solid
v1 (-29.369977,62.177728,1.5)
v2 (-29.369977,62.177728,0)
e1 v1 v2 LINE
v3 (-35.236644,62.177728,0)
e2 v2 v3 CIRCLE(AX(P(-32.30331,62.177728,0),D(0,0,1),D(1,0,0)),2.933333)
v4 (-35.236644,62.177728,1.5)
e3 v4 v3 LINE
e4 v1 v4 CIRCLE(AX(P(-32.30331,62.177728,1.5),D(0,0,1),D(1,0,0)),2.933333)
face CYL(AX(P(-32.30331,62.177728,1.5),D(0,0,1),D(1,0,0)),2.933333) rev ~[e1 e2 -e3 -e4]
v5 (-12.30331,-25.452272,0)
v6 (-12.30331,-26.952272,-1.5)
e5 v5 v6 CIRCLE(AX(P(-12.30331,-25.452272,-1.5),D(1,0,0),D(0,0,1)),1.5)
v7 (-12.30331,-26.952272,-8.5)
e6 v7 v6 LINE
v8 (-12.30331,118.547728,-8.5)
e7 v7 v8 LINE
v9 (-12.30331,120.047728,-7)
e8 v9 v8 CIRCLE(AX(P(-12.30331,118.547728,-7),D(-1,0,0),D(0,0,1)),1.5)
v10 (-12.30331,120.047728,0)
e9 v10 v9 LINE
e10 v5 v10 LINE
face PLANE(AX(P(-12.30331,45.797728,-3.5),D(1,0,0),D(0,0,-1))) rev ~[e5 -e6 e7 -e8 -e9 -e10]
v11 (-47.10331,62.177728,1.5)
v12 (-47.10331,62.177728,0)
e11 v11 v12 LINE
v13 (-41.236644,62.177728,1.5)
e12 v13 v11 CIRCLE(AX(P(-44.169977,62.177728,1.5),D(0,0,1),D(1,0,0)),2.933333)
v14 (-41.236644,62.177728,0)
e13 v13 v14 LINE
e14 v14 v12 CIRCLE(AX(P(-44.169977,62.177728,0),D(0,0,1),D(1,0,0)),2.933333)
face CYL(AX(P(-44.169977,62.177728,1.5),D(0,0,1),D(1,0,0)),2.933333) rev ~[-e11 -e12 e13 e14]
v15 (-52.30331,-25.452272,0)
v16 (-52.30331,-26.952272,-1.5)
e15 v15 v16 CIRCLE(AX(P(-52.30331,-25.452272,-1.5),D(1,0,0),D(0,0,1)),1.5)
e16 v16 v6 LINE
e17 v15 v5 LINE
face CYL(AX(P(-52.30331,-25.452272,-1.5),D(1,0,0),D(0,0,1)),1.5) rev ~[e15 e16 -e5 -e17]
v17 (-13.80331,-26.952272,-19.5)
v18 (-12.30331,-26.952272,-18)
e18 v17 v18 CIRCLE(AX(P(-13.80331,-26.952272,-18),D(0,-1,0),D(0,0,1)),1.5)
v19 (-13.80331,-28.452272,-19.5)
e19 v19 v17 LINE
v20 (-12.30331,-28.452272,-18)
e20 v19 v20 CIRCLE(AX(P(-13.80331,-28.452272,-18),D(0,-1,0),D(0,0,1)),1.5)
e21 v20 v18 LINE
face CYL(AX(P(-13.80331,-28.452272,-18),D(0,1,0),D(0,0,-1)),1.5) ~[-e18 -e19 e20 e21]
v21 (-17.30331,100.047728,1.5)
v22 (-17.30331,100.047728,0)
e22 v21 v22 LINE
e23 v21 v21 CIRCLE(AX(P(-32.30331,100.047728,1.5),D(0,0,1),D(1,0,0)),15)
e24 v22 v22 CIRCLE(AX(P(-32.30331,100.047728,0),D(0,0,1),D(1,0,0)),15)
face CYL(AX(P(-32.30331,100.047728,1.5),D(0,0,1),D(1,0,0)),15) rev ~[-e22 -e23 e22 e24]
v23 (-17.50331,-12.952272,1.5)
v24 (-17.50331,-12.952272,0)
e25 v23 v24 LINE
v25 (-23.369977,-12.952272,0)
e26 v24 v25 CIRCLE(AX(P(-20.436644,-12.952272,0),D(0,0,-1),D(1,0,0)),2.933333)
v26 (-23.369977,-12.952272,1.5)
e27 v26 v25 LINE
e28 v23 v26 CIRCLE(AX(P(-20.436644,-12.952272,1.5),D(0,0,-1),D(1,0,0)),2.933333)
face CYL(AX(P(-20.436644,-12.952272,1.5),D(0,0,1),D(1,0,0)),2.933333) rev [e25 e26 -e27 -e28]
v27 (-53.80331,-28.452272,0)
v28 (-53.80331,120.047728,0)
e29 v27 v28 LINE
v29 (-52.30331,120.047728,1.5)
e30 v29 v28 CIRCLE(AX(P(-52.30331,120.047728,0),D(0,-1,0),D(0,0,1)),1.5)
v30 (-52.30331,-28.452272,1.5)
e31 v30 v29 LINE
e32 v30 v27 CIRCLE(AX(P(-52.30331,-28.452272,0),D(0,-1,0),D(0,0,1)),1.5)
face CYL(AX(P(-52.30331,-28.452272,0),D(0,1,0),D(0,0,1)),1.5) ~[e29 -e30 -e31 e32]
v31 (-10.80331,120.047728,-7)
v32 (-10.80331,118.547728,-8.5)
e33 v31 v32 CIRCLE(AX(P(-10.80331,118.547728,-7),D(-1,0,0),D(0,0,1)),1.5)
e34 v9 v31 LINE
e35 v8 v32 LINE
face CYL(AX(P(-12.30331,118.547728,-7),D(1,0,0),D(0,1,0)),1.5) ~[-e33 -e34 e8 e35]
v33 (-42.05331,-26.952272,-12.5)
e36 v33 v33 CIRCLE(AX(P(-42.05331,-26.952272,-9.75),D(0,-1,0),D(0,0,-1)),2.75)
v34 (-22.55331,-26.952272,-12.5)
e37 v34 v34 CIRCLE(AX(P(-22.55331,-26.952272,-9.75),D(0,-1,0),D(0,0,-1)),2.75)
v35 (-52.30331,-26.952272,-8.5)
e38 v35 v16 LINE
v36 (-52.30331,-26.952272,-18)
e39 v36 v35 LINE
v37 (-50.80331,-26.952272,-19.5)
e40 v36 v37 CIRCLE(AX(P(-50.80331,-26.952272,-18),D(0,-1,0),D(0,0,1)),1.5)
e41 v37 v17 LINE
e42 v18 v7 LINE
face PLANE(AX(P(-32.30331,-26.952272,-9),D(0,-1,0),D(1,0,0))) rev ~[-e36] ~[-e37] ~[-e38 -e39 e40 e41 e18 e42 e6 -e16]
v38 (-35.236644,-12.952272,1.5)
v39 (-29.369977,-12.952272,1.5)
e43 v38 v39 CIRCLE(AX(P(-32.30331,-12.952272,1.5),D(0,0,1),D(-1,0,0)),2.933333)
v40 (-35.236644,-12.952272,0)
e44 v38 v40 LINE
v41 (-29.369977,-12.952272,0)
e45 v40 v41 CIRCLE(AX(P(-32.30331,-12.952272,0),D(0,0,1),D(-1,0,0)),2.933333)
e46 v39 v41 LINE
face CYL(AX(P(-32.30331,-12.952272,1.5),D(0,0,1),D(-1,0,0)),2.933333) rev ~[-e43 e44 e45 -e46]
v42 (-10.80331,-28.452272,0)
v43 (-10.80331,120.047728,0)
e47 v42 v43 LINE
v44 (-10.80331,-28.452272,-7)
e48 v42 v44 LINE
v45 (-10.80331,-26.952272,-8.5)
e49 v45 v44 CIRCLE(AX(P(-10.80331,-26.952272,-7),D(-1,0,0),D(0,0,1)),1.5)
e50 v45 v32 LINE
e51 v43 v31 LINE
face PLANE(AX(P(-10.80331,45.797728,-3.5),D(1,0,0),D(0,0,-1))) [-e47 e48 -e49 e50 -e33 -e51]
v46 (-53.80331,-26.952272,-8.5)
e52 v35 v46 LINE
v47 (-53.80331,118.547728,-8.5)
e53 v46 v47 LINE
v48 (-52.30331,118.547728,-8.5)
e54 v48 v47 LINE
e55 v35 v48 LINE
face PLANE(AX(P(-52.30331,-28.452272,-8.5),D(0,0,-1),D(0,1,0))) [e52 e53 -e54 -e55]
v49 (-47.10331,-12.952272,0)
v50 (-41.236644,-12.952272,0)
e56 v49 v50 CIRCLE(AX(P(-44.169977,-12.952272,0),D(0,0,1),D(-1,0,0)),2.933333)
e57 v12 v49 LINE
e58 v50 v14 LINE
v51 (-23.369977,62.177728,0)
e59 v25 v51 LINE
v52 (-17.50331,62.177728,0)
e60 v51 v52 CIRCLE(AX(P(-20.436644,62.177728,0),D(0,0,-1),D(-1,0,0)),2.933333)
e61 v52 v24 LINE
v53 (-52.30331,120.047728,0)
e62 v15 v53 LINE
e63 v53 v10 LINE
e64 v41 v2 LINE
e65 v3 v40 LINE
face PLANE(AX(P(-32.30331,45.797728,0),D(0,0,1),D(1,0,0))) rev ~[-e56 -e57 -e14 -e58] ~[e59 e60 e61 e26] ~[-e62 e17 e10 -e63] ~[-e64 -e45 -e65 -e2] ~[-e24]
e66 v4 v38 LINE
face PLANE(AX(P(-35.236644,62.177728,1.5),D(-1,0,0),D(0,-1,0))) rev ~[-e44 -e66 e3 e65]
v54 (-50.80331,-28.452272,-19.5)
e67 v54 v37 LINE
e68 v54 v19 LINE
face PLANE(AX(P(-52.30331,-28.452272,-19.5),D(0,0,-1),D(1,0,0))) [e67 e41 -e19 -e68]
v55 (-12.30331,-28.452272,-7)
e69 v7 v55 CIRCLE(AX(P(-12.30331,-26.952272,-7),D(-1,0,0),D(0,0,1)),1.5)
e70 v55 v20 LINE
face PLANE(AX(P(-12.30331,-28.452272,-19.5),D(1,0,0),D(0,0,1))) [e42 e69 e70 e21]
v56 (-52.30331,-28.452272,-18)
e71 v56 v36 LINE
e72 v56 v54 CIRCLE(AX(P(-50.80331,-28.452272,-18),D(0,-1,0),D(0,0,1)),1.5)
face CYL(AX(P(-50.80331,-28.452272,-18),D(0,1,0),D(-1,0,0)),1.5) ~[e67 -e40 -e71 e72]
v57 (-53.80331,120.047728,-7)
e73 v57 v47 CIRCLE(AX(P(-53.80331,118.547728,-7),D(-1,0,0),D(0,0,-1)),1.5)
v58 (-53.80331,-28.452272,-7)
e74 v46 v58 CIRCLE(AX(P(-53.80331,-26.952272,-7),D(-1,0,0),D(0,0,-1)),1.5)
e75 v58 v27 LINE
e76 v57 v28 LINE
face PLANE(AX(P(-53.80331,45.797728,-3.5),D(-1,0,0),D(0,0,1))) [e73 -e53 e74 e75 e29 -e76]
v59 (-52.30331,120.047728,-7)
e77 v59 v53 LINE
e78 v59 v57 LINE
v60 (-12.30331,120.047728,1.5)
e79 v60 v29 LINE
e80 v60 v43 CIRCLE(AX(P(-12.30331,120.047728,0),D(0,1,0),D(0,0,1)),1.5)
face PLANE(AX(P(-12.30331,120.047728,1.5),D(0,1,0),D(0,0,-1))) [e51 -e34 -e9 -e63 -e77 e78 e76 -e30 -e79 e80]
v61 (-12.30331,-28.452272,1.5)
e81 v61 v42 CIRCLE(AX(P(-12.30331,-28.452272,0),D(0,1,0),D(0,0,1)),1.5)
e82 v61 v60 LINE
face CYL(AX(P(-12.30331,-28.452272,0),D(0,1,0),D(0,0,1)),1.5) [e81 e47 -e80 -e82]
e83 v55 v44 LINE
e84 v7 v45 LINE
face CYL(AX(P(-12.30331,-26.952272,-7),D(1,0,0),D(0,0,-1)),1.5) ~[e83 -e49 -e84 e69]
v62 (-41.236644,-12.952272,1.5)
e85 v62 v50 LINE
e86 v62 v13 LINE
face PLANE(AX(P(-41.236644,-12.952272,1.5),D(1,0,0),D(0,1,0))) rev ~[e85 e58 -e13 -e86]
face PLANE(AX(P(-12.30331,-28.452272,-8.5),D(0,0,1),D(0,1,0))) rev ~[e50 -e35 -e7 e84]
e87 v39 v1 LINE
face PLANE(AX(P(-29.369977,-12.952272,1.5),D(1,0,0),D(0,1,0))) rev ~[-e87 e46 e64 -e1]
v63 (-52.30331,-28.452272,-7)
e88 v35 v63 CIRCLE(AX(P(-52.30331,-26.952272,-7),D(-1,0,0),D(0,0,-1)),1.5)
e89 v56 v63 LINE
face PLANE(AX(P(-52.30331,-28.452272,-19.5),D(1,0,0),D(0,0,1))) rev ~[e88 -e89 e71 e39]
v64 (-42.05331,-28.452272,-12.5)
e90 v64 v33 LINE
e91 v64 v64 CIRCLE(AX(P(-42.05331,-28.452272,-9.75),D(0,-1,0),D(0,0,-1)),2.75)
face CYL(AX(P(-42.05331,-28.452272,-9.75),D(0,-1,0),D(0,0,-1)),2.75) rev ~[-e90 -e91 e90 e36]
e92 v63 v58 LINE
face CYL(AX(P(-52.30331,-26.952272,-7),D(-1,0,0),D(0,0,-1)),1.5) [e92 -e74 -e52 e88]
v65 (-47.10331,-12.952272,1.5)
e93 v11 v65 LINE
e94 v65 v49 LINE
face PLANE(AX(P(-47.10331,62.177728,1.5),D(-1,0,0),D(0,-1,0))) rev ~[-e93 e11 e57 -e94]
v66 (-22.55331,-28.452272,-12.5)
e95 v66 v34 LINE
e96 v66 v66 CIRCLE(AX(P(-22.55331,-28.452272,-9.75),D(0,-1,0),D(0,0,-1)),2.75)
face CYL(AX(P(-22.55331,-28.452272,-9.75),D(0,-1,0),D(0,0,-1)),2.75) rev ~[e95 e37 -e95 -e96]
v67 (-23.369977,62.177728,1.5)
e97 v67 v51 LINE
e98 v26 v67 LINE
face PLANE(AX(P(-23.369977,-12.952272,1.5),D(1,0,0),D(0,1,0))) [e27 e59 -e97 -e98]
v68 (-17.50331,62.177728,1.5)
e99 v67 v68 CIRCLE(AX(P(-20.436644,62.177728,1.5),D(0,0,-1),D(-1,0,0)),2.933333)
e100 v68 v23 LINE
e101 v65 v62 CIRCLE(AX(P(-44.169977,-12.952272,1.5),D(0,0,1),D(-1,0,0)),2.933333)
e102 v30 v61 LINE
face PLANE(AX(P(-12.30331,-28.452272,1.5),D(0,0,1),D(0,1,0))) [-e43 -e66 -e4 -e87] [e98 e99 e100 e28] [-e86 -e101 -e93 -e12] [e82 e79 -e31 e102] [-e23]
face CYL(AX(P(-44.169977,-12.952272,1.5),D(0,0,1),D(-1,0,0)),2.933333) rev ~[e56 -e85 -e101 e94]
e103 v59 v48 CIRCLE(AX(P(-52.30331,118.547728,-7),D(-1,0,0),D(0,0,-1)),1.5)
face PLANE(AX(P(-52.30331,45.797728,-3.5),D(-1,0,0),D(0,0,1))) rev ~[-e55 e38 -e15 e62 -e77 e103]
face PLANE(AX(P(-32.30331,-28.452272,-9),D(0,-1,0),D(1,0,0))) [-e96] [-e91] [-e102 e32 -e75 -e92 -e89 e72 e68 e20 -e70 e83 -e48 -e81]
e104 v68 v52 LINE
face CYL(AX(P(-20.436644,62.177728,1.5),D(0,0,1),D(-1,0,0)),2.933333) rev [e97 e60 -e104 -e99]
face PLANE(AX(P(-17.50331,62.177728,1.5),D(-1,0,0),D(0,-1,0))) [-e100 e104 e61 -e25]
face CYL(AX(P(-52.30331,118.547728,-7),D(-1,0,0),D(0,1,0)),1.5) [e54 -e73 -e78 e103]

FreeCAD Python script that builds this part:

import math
import FreeCAD as App
import Part
import Sketcher

V = App.Vector
Q = App.Units.Quantity


def edges_at(feature, points):
    """Names of the edges that pass closest to the given points."""
    edges = feature.Shape.Edges
    near = lambda p: min(range(len(edges)), key=lambda i: edges[i].distToShape(Part.Vertex(*p))[0])
    return sorted({f"Edge{near(p) + 1}" for p in points})

doc = App.newDocument("Part")
body = doc.addObject("PartDesign::Body", "Body")

sketch1 = doc.addObject("Sketcher::SketchObject", "Sketch")
body.addObject(sketch1)
sketch1.AttachmentSupport = (doc.XY_Plane, [""])
sketch1.MapMode = "FlatFace"
sketch1.addGeometry([
    Part.LineSegment(V(-52, 120, 0), V(-52, -28, 0)),
    Part.LineSegment(V(-52, -28, 0), V(-12, -28, 0)),
    Part.LineSegment(V(-12, -28, 0), V(-12, 120, 0)),
    Part.LineSegment(V(-12, 120, 0), V(-52, 120, 0)),
], False)
sketch1.addConstraint([
    Sketcher.Constraint("Coincident", 0, 2, 1, 1),
    Sketcher.Constraint("Coincident", 1, 2, 2, 1),
    Sketcher.Constraint("Coincident", 2, 2, 3, 1),
    Sketcher.Constraint("Coincident", 3, 2, 0, 1),
    Sketcher.Constraint("Vertical", 0),
    Sketcher.Constraint("Horizontal", 1),
    Sketcher.Constraint("Vertical", 2),
    Sketcher.Constraint("Horizontal", 3),
    Sketcher.Constraint("DistanceX", 1, 1, 1, 2, Q("40 mm")),
    Sketcher.Constraint("DistanceY", 0, 2, 0, 1, Q("148.5 mm")),
    Sketcher.Constraint("DistanceX", 0, 2, -1, 1, Q("52.30331 mm")),
    Sketcher.Constraint("DistanceY", 0, 2, -1, 1, Q("28.452272 mm")),
])
pad1 = doc.addObject("PartDesign::Pad", "Pad")
body.addObject(pad1)
pad1.Profile = sketch1
pad1.Length = 1.5

sketch2 = doc.addObject("Sketcher::SketchObject", "Sketch001")
body.addObject(sketch2)
sketch2.AttachmentSupport = (doc.XY_Plane, [""])
sketch2.MapMode = "FlatFace"
sketch2.AttachmentOffset = App.Placement(V(0, 0, 1.5), App.Rotation())
sketch2.addGeometry(Part.Circle(V(-32, 100, 0), V(0, 0, 1), 15), False)
sketch2.addConstraint([
    Sketcher.Constraint("Diameter", 0, Q("30 mm")),
    Sketcher.Constraint("DistanceX", 0, 3, -1, 1, Q("32.30331 mm")),
    Sketcher.Constraint("DistanceY", -1, 1, 0, 3, Q("100.047728 mm")),
])
pocket1 = doc.addObject("PartDesign::Pocket", "Pocket")
body.addObject(pocket1)
pocket1.Profile = sketch2
pocket1.Length = 1.5

sketch3 = doc.addObject("Sketcher::SketchObject", "Sketch002")
body.addObject(sketch3)
sketch3.AttachmentSupport = (doc.XY_Plane, [""])
sketch3.MapMode = "FlatFace"
sketch3.AttachmentOffset = App.Placement(V(0, 0, 1.5), App.Rotation())
sketch3.addGeometry([
    Part.LineSegment(V(-41.2, -13, 0), V(-41.2, 62.2, 0)),
    Part.ArcOfCircle(Part.Circle(V(-44.2, 62.2, 0), V(0, 0, 1), 2.9), math.radians(0), math.radians(180)),
    Part.LineSegment(V(-47.1, 62.2, 0), V(-47.1, -13, 0)),
    Part.ArcOfCircle(Part.Circle(V(-44.2, -13, 0), V(0, 0, 1), 2.9), math.radians(180), math.radians(360)),
    Part.LineSegment(V(-29.4, -13, 0), V(-29.4, 62.2, 0)),
    Part.ArcOfCircle(Part.Circle(V(-32.3, 62.2, 0), V(0, 0, 1), 2.9), math.radians(0), math.radians(180)),
    Part.LineSegment(V(-35.2, 62.2, 0), V(-35.2, -13, 0)),
    Part.ArcOfCircle(Part.Circle(V(-32.3, -13, 0), V(0, 0, 1), 2.9), math.radians(180), math.radians(360)),
    Part.LineSegment(V(-17.5, -13, 0), V(-17.5, 62.2, 0)),
    Part.ArcOfCircle(Part.Circle(V(-20.4, 62.2, 0), V(0, 0, 1), 2.9), math.radians(0), math.radians(180)),
    Part.LineSegment(V(-23.4, 62.2, 0), V(-23.4, -13, 0)),
    Part.ArcOfCircle(Part.Circle(V(-20.4, -13, 0), V(0, 0, 1), 2.9), math.radians(-180), math.radians(0)),
], False)
sketch3.addConstraint([
    Sketcher.Constraint("Tangent", 0, 2, 1, 1),
    Sketcher.Constraint("Tangent", 1, 2, 2, 1),
    Sketcher.Constraint("Tangent", 2, 2, 3, 1),
    Sketcher.Constraint("Tangent", 3, 2, 0, 1),
    Sketcher.Constraint("Tangent", 4, 2, 5, 1),
    Sketcher.Constraint("Tangent", 5, 2, 6, 1),
    Sketcher.Constraint("Tangent", 6, 2, 7, 1),
    Sketcher.Constraint("Tangent", 7, 2, 4, 1),
    Sketcher.Constraint("Tangent", 8, 2, 9, 1),
    Sketcher.Constraint("Tangent", 9, 2, 10, 1),
    Sketcher.Constraint("Tangent", 10, 2, 11, 1),
    Sketcher.Constraint("Tangent", 11, 2, 8, 1),
    Sketcher.Constraint("Vertical", 0),
    Sketcher.Constraint("Vertical", 2),
    Sketcher.Constraint("Vertical", 4),
    Sketcher.Constraint("Vertical", 6),
    Sketcher.Constraint("Vertical", 8),
    Sketcher.Constraint("Vertical", 10),
    Sketcher.Constraint("Equal", 3, 5),
    Sketcher.Constraint("Equal", 7, 9),
    Sketcher.Constraint("Horizontal", 1, 3, 5, 3),
    Sketcher.Constraint("Horizontal", 3, 3, 7, 3),
    Sketcher.Constraint("Horizontal", 5, 3, 9, 3),
    Sketcher.Constraint("Horizontal", 7, 3, 11, 3),
    Sketcher.Constraint("DistanceX", 0, 2, 5, 2, Q("6 mm")),
    Sketcher.Constraint("DistanceX", 4, 2, 9, 2, Q("6 mm")),
    Sketcher.Constraint("DistanceY", 0, 1, 0, 2, Q("75.13 mm")),
    Sketcher.Constraint("DistanceX", 0, 2, 9, 3, Q("20.8 mm")),
    Sketcher.Constraint("DistanceY", -1, 1, 1, 3, Q("62.177728 mm")),
    Sketcher.Constraint("DistanceX", 5, 3, -1, 1, Q("32.30331 mm")),
])
pocket2 = doc.addObject("PartDesign::Pocket", "Pocket001")
body.addObject(pocket2)
pocket2.Profile = sketch3
pocket2.Length = 1.5

sketch4 = doc.addObject("Sketcher::SketchObject", "Sketch003")
body.addObject(sketch4)
sketch4.AttachmentSupport = (doc.YZ_Plane, [""])
sketch4.MapMode = "FlatFace"
sketch4.AttachmentOffset = App.Placement(V(0, 0, -52.30331), App.Rotation())
sketch4.addGeometry([
    Part.LineSegment(V(120, -8, 0), V(-28, -8, 0)),
    Part.LineSegment(V(-28, -8, 0), V(-28, 2, 0)),
    Part.LineSegment(V(-28, 2, 0), V(120, 2, 0)),
    Part.LineSegment(V(120, 2, 0), V(120, -8, 0)),
], False)
sketch4.addConstraint([
    Sketcher.Constraint("Coincident", 0, 2, 1, 1),
    Sketcher.Constraint("Coincident", 1, 2, 2, 1),
    Sketcher.Constraint("Coincident", 2, 2, 3, 1),
    Sketcher.Constraint("Coincident", 3, 2, 0, 1),
    Sketcher.Constraint("Horizontal", 0),
    Sketcher.Constraint("Vertical", 1),
    Sketcher.Constraint("Horizontal", 2),
    Sketcher.Constraint("Vertical", 3),
    Sketcher.Constraint("DistanceY", 1, 1, 1, 2, Q("10 mm")),
    Sketcher.Constraint("DistanceX", 0, 2, 0, 1, Q("148.5 mm")),
    Sketcher.Constraint("DistanceY", 0, 2, -1, 1, Q("8.5 mm")),
    Sketcher.Constraint("DistanceX", 0, 2, -1, 1, Q("28.452272 mm")),
])
pad2 = doc.addObject("PartDesign::Pad", "Pad001")
body.addObject(pad2)
pad2.Profile = sketch4
pad2.Length = 1.5
pad2.Reversed = True

sketch5 = doc.addObject("Sketcher::SketchObject", "Sketch004")
body.addObject(sketch5)
sketch5.AttachmentSupport = (doc.YZ_Plane, [""])
sketch5.MapMode = "FlatFace"
sketch5.AttachmentOffset = App.Placement(V(0, 0, -12.30331), App.Rotation())
sketch5.addGeometry([
    Part.LineSegment(V(120, 2, 0), V(-28, 2, 0)),
    Part.LineSegment(V(-28, 2, 0), V(-28, -8, 0)),
    Part.LineSegment(V(-28, -8, 0), V(120, -8, 0)),
    Part.LineSegment(V(120, -8, 0), V(120, 2, 0)),
], False)
sketch5.addConstraint([
    Sketcher.Constraint("Coincident", 0, 2, 1, 1),
    Sketcher.Constraint("Coincident", 1, 2, 2, 1),
    Sketcher.Constraint("Coincident", 2, 2, 3, 1),
    Sketcher.Constraint("Coincident", 3, 2, 0, 1),
    Sketcher.Constraint("Horizontal", 0),
    Sketcher.Constraint("Vertical", 1),
    Sketcher.Constraint("Horizontal", 2),
    Sketcher.Constraint("Vertical", 3),
    Sketcher.Constraint("DistanceY", 1, 2, 1, 1, Q("10 mm")),
    Sketcher.Constraint("DistanceX", 0, 2, 0, 1, Q("148.5 mm")),
    Sketcher.Constraint("DistanceY", -1, 1, 0, 2, Q("1.5 mm")),
    Sketcher.Constraint("DistanceX", 0, 2, -1, 1, Q("28.452272 mm")),
])
pad3 = doc.addObject("PartDesign::Pad", "Pad002")
body.addObject(pad3)
pad3.Profile = sketch5
pad3.Length = 1.5
doc.recompute()

fillet = doc.addObject("PartDesign::Fillet", "Fillet")
body.addObject(fillet)
fillet.Base = (pad3, edges_at(pad3, [(-53.803, 45.798, 1.5), (-10.803, 45.798, 1.5)]))
fillet.Radius = 1.5

sketch6 = doc.addObject("Sketcher::SketchObject", "Sketch005")
body.addObject(sketch6)
sketch6.AttachmentSupport = (doc.XZ_Plane, [""])
sketch6.MapMode = "FlatFace"
sketch6.AttachmentOffset = App.Placement(V(0, 0, 28.452272), App.Rotation())
sketch6.addGeometry([
    Part.LineSegment(V(-52, 2, 0), V(-52, -20, 0)),
    Part.LineSegment(V(-52, -20, 0), V(-12, -20, 0)),
    Part.LineSegment(V(-12, -20, 0), V(-12, 2, 0)),
    Part.LineSegment(V(-12, 2, 0), V(-52, 2, 0)),
], False)
sketch6.addConstraint([
    Sketcher.Constraint("Coincident", 0, 2, 1, 1),
    Sketcher.Constraint("Coincident", 1, 2, 2, 1),
    Sketcher.Constraint("Coincident", 2, 2, 3, 1),
    Sketcher.Constraint("Coincident", 3, 2, 0, 1),
    Sketcher.Constraint("Vertical", 0),
    Sketcher.Constraint("Horizontal", 1),
    Sketcher.Constraint("Vertical", 2),
    Sketcher.Constraint("Horizontal", 3),
    Sketcher.Constraint("DistanceX", 1, 1, 1, 2, Q("40 mm")),
    Sketcher.Constraint("DistanceY", 0, 2, 0, 1, Q("21 mm")),
    Sketcher.Constraint("DistanceY", 0, 2, -1, 1, Q("19.5 mm")),
    Sketcher.Constraint("DistanceX", 0, 2, -1, 1, Q("52.30331 mm")),
])
pad4 = doc.addObject("PartDesign::Pad", "Pad003")
body.addObject(pad4)
pad4.Profile = sketch6
pad4.Length = 1.5
pad4.Reversed = True
doc.recompute()

fillet2 = doc.addObject("PartDesign::Fillet", "Fillet001")
body.addObject(fillet2)
fillet2.Base = (pad4, edges_at(pad4, [(-32.303, -26.952, 0)]))
fillet2.Radius = 1.5

sketch7 = doc.addObject("Sketcher::SketchObject", "Sketch006")
body.addObject(sketch7)
sketch7.AttachmentSupport = (doc.XZ_Plane, [""])
sketch7.MapMode = "FlatFace"
sketch7.AttachmentOffset = App.Placement(V(0, 0, 28.452272), App.Rotation())
sketch7.addGeometry([
    Part.Circle(V(-42.1, -9.8, 0), V(0, 0, 1), 2.8),
    Part.Circle(V(-22.6, -9.8, 0), V(0, 0, 1), 2.8),
], False)
sketch7.addConstraint([
    Sketcher.Constraint("Equal", 0, 1),
    Sketcher.Constraint("Horizontal", 0, 3, 1, 3),
    Sketcher.Constraint("Diameter", 0, Q("5.5 mm")),
    Sketcher.Constraint("DistanceX", 0, 3, 1, 3, Q("19.5 mm")),
    Sketcher.Constraint("DistanceY", 0, 3, -1, 1, Q("9.75 mm")),
    Sketcher.Constraint("DistanceX", 0, 3, -1, 1, Q("42.05331 mm")),
])
pocket3 = doc.addObject("PartDesign::Pocket", "Pocket002")
body.addObject(pocket3)
pocket3.Profile = sketch7
pocket3.Length = 1.5
doc.recompute()

fillet3 = doc.addObject("PartDesign::Fillet", "Fillet002")
body.addObject(fillet3)
fillet3.Base = (pocket3, edges_at(pocket3, [
    (-52.303, -27.702, -19.5),
    (-12.303, -27.702, -19.5),
    (-53.053, -28.452, -8.5),
    (-53.053, 120.048, -8.5),
    (-11.553, -28.452, -8.5),
    (-11.553, 120.048, -8.5),
]))
fillet3.Radius = 1.5

doc.recompute()
